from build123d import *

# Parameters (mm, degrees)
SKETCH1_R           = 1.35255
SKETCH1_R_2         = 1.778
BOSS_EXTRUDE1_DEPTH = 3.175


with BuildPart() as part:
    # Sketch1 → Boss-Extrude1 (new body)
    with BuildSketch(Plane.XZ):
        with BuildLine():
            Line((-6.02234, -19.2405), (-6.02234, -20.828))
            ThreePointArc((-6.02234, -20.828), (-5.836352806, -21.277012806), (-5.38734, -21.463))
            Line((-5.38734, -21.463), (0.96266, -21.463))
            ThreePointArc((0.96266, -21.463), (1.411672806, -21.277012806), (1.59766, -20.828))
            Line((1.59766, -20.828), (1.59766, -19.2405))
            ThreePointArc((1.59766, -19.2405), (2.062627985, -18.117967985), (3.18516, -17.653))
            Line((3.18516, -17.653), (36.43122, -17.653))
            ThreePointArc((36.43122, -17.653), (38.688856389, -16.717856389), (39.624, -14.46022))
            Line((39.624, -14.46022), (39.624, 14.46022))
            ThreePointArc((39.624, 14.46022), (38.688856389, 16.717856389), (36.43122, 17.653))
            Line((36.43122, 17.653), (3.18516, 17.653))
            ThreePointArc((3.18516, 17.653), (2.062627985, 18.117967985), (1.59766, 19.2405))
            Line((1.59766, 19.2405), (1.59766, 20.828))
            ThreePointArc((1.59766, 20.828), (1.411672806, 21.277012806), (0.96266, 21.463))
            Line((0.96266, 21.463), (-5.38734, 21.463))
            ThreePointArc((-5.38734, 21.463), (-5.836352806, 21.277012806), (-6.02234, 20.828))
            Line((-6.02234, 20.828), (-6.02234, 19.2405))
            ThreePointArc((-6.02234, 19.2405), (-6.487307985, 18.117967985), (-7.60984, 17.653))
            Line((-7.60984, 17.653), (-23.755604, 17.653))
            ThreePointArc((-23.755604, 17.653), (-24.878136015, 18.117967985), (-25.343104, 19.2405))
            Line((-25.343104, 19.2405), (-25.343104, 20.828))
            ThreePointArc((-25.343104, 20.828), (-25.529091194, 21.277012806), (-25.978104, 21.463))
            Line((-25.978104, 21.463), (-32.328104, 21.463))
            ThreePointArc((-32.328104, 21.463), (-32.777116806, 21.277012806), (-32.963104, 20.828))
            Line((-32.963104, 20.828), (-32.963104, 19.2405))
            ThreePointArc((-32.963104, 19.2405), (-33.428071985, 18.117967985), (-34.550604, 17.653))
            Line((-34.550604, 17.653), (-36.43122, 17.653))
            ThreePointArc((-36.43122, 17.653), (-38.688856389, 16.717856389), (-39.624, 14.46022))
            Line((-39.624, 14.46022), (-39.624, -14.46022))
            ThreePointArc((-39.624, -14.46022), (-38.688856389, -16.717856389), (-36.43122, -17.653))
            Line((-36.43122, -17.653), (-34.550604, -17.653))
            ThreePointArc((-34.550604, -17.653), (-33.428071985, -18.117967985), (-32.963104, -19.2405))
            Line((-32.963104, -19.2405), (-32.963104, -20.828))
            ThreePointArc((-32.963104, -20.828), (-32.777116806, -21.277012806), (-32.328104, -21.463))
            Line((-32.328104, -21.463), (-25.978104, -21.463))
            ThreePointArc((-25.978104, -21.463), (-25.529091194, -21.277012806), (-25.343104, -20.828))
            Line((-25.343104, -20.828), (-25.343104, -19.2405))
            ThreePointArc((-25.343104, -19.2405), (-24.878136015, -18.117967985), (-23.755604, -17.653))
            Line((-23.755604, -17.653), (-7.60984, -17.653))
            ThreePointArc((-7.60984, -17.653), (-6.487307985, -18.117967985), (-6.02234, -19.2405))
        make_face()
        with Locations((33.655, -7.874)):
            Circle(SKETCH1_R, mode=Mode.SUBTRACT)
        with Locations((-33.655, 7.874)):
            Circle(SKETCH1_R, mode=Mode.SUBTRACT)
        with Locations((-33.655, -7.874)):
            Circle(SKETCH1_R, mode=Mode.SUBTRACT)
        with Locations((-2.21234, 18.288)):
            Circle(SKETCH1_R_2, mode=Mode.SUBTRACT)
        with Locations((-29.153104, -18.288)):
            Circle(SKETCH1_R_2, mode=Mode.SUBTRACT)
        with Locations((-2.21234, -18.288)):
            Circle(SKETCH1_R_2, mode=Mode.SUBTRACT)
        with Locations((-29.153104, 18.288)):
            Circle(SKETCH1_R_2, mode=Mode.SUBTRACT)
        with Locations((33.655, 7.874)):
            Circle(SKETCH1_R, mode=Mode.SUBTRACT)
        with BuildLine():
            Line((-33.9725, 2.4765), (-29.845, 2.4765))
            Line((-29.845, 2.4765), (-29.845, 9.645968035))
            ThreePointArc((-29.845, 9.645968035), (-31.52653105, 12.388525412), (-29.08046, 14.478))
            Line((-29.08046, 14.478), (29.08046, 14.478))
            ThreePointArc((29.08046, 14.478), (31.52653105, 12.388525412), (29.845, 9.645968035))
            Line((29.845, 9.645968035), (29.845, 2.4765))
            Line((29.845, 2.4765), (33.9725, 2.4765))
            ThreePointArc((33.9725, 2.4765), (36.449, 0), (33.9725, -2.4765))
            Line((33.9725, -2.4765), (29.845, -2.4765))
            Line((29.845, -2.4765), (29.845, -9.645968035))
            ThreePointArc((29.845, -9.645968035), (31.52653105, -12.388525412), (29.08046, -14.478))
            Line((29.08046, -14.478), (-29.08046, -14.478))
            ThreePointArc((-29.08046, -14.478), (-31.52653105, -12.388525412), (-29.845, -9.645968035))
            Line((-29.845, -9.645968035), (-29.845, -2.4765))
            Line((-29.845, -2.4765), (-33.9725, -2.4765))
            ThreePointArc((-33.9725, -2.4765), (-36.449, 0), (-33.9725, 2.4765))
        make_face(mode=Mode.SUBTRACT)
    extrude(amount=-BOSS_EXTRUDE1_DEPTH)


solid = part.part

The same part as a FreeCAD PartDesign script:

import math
import FreeCAD as App
import Part
import Sketcher
from FreeCAD import Vector
Q = App.Units.Quantity

doc = App.newDocument("Part")
body = doc.addObject("PartDesign::Body", "Body")

sketch1 = doc.addObject("Sketcher::SketchObject", "Sketch")
body.addObject(sketch1)
sketch1.AttachmentSupport = (doc.XZ_Plane, [""])
sketch1.MapMode = "FlatFace"
sketch1.addGeometry([
    Part.LineSegment(Vector(-6, -19.2, 0), Vector(-6, -20.8, 0)),
    Part.ArcOfCircle(Part.Circle(Vector(-5.4, -20.8, 0), Vector(0, 0, 1), 0.6), math.radians(180), math.radians(270)),
    Part.LineSegment(Vector(-5.4, -21.5, 0), Vector(1, -21.5, 0)),
    Part.ArcOfCircle(Part.Circle(Vector(1, -20.8, 0), Vector(0, 0, 1), 0.6), math.radians(-90), math.radians(0)),
    Part.LineSegment(Vector(1.6, -20.8, 0), Vector(1.6, -19.2, 0)),
    Part.ArcOfCircle(Part.Circle(Vector(3.2, -19.2, 0), Vector(0, 0, 1), 1.6), math.radians(90), math.radians(180)),
    Part.LineSegment(Vector(3.2, -17.7, 0), Vector(36.4, -17.7, 0)),
    Part.ArcOfCircle(Part.Circle(Vector(36.4, -14.5, 0), Vector(0, 0, 1), 3.2), math.radians(-90), math.radians(0)),
    Part.LineSegment(Vector(39.6, -14.5, 0), Vector(39.6, 14.5, 0)),
    Part.ArcOfCircle(Part.Circle(Vector(36.4, 14.5, 0), Vector(0, 0, 1), 3.2), math.radians(0), math.radians(90)),
    Part.LineSegment(Vector(36.4, 17.7, 0), Vector(3.2, 17.7, 0)),
    Part.ArcOfCircle(Part.Circle(Vector(3.2, 19.2, 0), Vector(0, 0, 1), 1.6), math.radians(180), math.radians(270)),
    Part.LineSegment(Vector(1.6, 19.2, 0), Vector(1.6, 20.8, 0)),
    Part.ArcOfCircle(Part.Circle(Vector(1, 20.8, 0), Vector(0, 0, 1), 0.6), math.radians(0), math.radians(90)),
    Part.LineSegment(Vector(1, 21.5, 0), Vector(-5.4, 21.5, 0)),
    Part.ArcOfCircle(Part.Circle(Vector(-5.4, 20.8, 0), Vector(0, 0, 1), 0.6), math.radians(90), math.radians(180)),
    Part.LineSegment(Vector(-6, 20.8, 0), Vector(-6, 19.2, 0)),
    Part.ArcOfCircle(Part.Circle(Vector(-7.6, 19.2, 0), Vector(0, 0, 1), 1.6), math.radians(-90), math.radians(0)),
    Part.LineSegment(Vector(-7.6, 17.7, 0), Vector(-23.8, 17.7, 0)),
    Part.ArcOfCircle(Part.Circle(Vector(-23.8, 19.2, 0), Vector(0, 0, 1), 1.6), math.radians(180), math.radians(270)),
    Part.LineSegment(Vector(-25.3, 19.2, 0), Vector(-25.3, 20.8, 0)),
    Part.ArcOfCircle(Part.Circle(Vector(-26, 20.8, 0), Vector(0, 0, 1), 0.6), math.radians(0), math.radians(90)),
    Part.LineSegment(Vector(-26, 21.5, 0), Vector(-32.3, 21.5, 0)),
    Part.ArcOfCircle(Part.Circle(Vector(-32.3, 20.8, 0), Vector(0, 0, 1), 0.6), math.radians(90), math.radians(180)),
    Part.LineSegment(Vector(-33, 20.8, 0), Vector(-33, 19.2, 0)),
    Part.ArcOfCircle(Part.Circle(Vector(-34.6, 19.2, 0), Vector(0, 0, 1), 1.6), math.radians(-90), math.radians(0)),
    Part.LineSegment(Vector(-34.6, 17.7, 0), Vector(-36.4, 17.7, 0)),
    Part.ArcOfCircle(Part.Circle(Vector(-36.4, 14.5, 0), Vector(0, 0, 1), 3.2), math.radians(90), math.radians(180)),
    Part.LineSegment(Vector(-39.6, 14.5, 0), Vector(-39.6, -14.5, 0)),
    Part.ArcOfCircle(Part.Circle(Vector(-36.4, -14.5, 0), Vector(0, 0, 1), 3.2), math.radians(180), math.radians(270)),
    Part.LineSegment(Vector(-36.4, -17.7, 0), Vector(-34.6, -17.7, 0)),
    Part.ArcOfCircle(Part.Circle(Vector(-34.6, -19.2, 0), Vector(0, 0, 1), 1.6), math.radians(0), math.radians(90)),
    Part.LineSegment(Vector(-33, -19.2, 0), Vector(-33, -20.8, 0)),
    Part.ArcOfCircle(Part.Circle(Vector(-32.3, -20.8, 0), Vector(0, 0, 1), 0.6), math.radians(180), math.radians(270)),
    Part.LineSegment(Vector(-32.3, -21.5, 0), Vector(-26, -21.5, 0)),
    Part.ArcOfCircle(Part.Circle(Vector(-26, -20.8, 0), Vector(0, 0, 1), 0.6), math.radians(-90), math.radians(0)),
    Part.LineSegment(Vector(-25.3, -20.8, 0), Vector(-25.3, -19.2, 0)),
    Part.ArcOfCircle(Part.Circle(Vector(-23.8, -19.2, 0), Vector(0, 0, 1), 1.6), math.radians(90), math.radians(180)),
    Part.LineSegment(Vector(-23.8, -17.7, 0), Vector(-7.6, -17.7, 0)),
    Part.ArcOfCircle(Part.Circle(Vector(-7.6, -19.2, 0), Vector(0, 0, 1), 1.6), math.radians(0), math.radians(90)),
    Part.Circle(Vector(-29.2, -18.3, 0), Vector(0, 0, 1), 1.8),
    Part.Circle(Vector(-2.2, -18.3, 0), Vector(0, 0, 1), 1.8),
    Part.Circle(Vector(-33.7, -7.9, 0), Vector(0, 0, 1), 1.4),
    Part.Circle(Vector(33.7, -7.9, 0), Vector(0, 0, 1), 1.4),
    Part.Circle(Vector(-33.7, 7.9, 0), Vector(0, 0, 1), 1.4),
    Part.Circle(Vector(-29.2, 18.3, 0), Vector(0, 0, 1), 1.8),
    Part.Circle(Vector(-2.2, 18.3, 0), Vector(0, 0, 1), 1.8),
    Part.ArcOfCircle(Part.Circle(Vector(-34, 0, 0), Vector(0, 0, 1), 2.5), math.radians(90), math.radians(270)),
    Part.LineSegment(Vector(-34, 2.5, 0), Vector(-29.8, 2.5, 0)),
    Part.LineSegment(Vector(-29.8, 2.5, 0), Vector(-29.8, 9.6, 0)),
    Part.ArcOfCircle(Part.Circle(Vector(-29.1, 12, 0), Vector(0, 0, 1), 2.5), math.radians(90), math.radians(252)),
    Part.LineSegment(Vector(-29.1, 14.5, 0), Vector(29.1, 14.5, 0)),
    Part.ArcOfCircle(Part.Circle(Vector(29.1, 12, 0), Vector(0, 0, 1), 2.5), math.radians(-72), math.radians(90)),
    Part.LineSegment(Vector(29.8, 9.6, 0), Vector(29.8, 2.5, 0)),
    Part.LineSegment(Vector(29.8, 2.5, 0), Vector(34, 2.5, 0)),
    Part.ArcOfCircle(Part.Circle(Vector(34, 0, 0), Vector(0, 0, 1), 2.5), math.radians(-90), math.radians(90)),
    Part.LineSegment(Vector(34, -2.5, 0), Vector(29.8, -2.5, 0)),
    Part.LineSegment(Vector(29.8, -2.5, 0), Vector(29.8, -9.6, 0)),
    Part.ArcOfCircle(Part.Circle(Vector(29.1, -12, 0), Vector(0, 0, 1), 2.5), math.radians(-90), math.radians(72)),
    Part.LineSegment(Vector(29.1, -14.5, 0), Vector(-29.1, -14.5, 0)),
    Part.ArcOfCircle(Part.Circle(Vector(-29.1, -12, 0), Vector(0, 0, 1), 2.5), math.radians(108), math.radians(270)),
    Part.LineSegment(Vector(-29.8, -9.6, 0), Vector(-29.8, -2.5, 0)),
    Part.LineSegment(Vector(-29.8, -2.5, 0), Vector(-34, -2.5, 0)),
    Part.Circle(Vector(33.7, 7.9, 0), Vector(0, 0, 1), 1.4),
], False)
sketch1.addConstraint([
    Sketcher.Constraint("Tangent", 0, 2, 1, 1),
    Sketcher.Constraint("Tangent", 1, 2, 2, 1),
    Sketcher.Constraint("Tangent", 2, 2, 3, 1),
    Sketcher.Constraint("Tangent", 3, 2, 4, 1),
    Sketcher.Constraint("Tangent", 4, 2, 5, 2),
    Sketcher.Constraint("Tangent", 5, 1, 6, 1),
    Sketcher.Constraint("Tangent", 6, 2, 7, 1),
    Sketcher.Constraint("Tangent", 7, 2, 8, 1),
    Sketcher.Constraint("Tangent", 8, 2, 9, 1),
    Sketcher.Constraint("Tangent", 9, 2, 10, 1),
    Sketcher.Constraint("Tangent", 10, 2, 11, 2),
    Sketcher.Constraint("Tangent", 11, 1, 12, 1),
    Sketcher.Constraint("Tangent", 12, 2, 13, 1),
    Sketcher.Constraint("Tangent", 13, 2, 14, 1),
    Sketcher.Constraint("Tangent", 14, 2, 15, 1),
    Sketcher.Constraint("Tangent", 15, 2, 16, 1),
    Sketcher.Constraint("Tangent", 16, 2, 17, 2),
    Sketcher.Constraint("Tangent", 17, 1, 18, 1),
    Sketcher.Constraint("Tangent", 18, 2, 19, 2),
    Sketcher.Constraint("Tangent", 19, 1, 20, 1),
    Sketcher.Constraint("Tangent", 20, 2, 21, 1),
    Sketcher.Constraint("Tangent", 21, 2, 22, 1),
    Sketcher.Constraint("Tangent", 22, 2, 23, 1),
    Sketcher.Constraint("Tangent", 23, 2, 24, 1),
    Sketcher.Constraint("Tangent", 24, 2, 25, 2),
    Sketcher.Constraint("Tangent", 25, 1, 26, 1),
    Sketcher.Constraint("Tangent", 26, 2, 27, 1),
    Sketcher.Constraint("Tangent", 27, 2, 28, 1),
    Sketcher.Constraint("Tangent", 28, 2, 29, 1),
    Sketcher.Constraint("Tangent", 29, 2, 30, 1),
    Sketcher.Constraint("Tangent", 30, 2, 31, 2),
    Sketcher.Constraint("Tangent", 31, 1, 32, 1),
    Sketcher.Constraint("Tangent", 32, 2, 33, 1),
    Sketcher.Constraint("Tangent", 33, 2, 34, 1),
    Sketcher.Constraint("Tangent", 34, 2, 35, 1),
    Sketcher.Constraint("Tangent", 35, 2, 36, 1),
    Sketcher.Constraint("Tangent", 36, 2, 37, 2),
    Sketcher.Constraint("Tangent", 37, 1, 38, 1),
    Sketcher.Constraint("Tangent", 38, 2, 39, 2),
    Sketcher.Constraint("Tangent", 39, 1, 0, 1),
    Sketcher.Constraint("Tangent", 47, 1, 48, 1),
    Sketcher.Constraint("Coincident", 48, 2, 49, 1),
    Sketcher.Constraint("Coincident", 49, 2, 50, 2),
    Sketcher.Constraint("Tangent", 50, 1, 51, 1),
    Sketcher.Constraint("Tangent", 51, 2, 52, 2),
    Sketcher.Constraint("Coincident", 52, 1, 53, 1),
    Sketcher.Constraint("Coincident", 53, 2, 54, 1),
    Sketcher.Constraint("Tangent", 54, 2, 55, 2),
    Sketcher.Constraint("Tangent", 55, 1, 56, 1),
    Sketcher.Constraint("Coincident", 56, 2, 57, 1),
    Sketcher.Constraint("Coincident", 57, 2, 58, 2),
    Sketcher.Constraint("Tangent", 58, 1, 59, 1),
    Sketcher.Constraint("Tangent", 59, 2, 60, 2),
    Sketcher.Constraint("Coincident", 60, 1, 61, 1),
    Sketcher.Constraint("Coincident", 61, 2, 62, 1),
    Sketcher.Constraint("Tangent", 62, 2, 47, 2),
    Sketcher.Constraint("Vertical", 0),
    Sketcher.Constraint("Horizontal", 2),
    Sketcher.Constraint("Vertical", 4),
    Sketcher.Constraint("Horizontal", 6),
    Sketcher.Constraint("Vertical", 8),
    Sketcher.Constraint("Horizontal", 10),
    Sketcher.Constraint("Vertical", 12),
    Sketcher.Constraint("Horizontal", 14),
    Sketcher.Constraint("Vertical", 16),
    Sketcher.Constraint("Horizontal", 18),
    Sketcher.Constraint("Vertical", 20),
    Sketcher.Constraint("Horizontal", 22),
    Sketcher.Constraint("Vertical", 24),
    Sketcher.Constraint("Horizontal", 26),
    Sketcher.Constraint("Vertical", 28),
    Sketcher.Constraint("Horizontal", 30),
    Sketcher.Constraint("Vertical", 32),
    Sketcher.Constraint("Horizontal", 34),
    Sketcher.Constraint("Vertical", 36),
    Sketcher.Constraint("Horizontal", 38),
    Sketcher.Constraint("Horizontal", 48),
    Sketcher.Constraint("Vertical", 49),
    Sketcher.Constraint("Horizontal", 51),
    Sketcher.Constraint("Vertical", 53),
    Sketcher.Constraint("Horizontal", 54),
    Sketcher.Constraint("Horizontal", 56),
    Sketcher.Constraint("Vertical", 57),
    Sketcher.Constraint("Horizontal", 59),
    Sketcher.Constraint("Vertical", 61),
    Sketcher.Constraint("Horizontal", 62),
    Sketcher.Constraint("Equal", 1, 3),
    Sketcher.Constraint("Equal", 7, 9),
    Sketcher.Constraint("Equal", 5, 11),
    Sketcher.Constraint("Equal", 3, 13),
    Sketcher.Constraint("Equal", 13, 15),
    Sketcher.Constraint("Equal", 11, 17),
    Sketcher.Constraint("Equal", 17, 19),
    Sketcher.Constraint("Equal", 15, 21),
    Sketcher.Constraint("Equal", 21, 23),
    Sketcher.Constraint("Equal", 19, 25),
    Sketcher.Constraint("Equal", 9, 27),
    Sketcher.Constraint("Equal", 27, 29),
    Sketcher.Constraint("Equal", 25, 31),
    Sketcher.Constraint("Equal", 23, 33),
    Sketcher.Constraint("Equal", 33, 35),
    Sketcher.Constraint("Equal", 31, 37),
    Sketcher.Constraint("Equal", 37, 39),
    Sketcher.Constraint("Equal", 40, 41),
    Sketcher.Constraint("Equal", 42, 43),
    Sketcher.Constraint("Equal", 43, 44),
    Sketcher.Constraint("Equal", 41, 45),
    Sketcher.Constraint("Equal", 45, 46),
    Sketcher.Constraint("Equal", 47, 50),
    Sketcher.Constraint("Equal", 50, 52),
    Sketcher.Constraint("Equal", 52, 55),
    Sketcher.Constraint("Equal", 55, 58),
    Sketcher.Constraint("Equal", 58, 60),
    Sketcher.Constraint("Equal", 44, 63),
    Sketcher.Constraint("Symmetric", 7, 3, 27, 3, -1, 1),
    Sketcher.Constraint("Symmetric", 43, 3, 44, 3, -1, 1),
    Sketcher.Constraint("Symmetric", 47, 3, 55, 3, -1, 1),
    Sketcher.Constraint("Symmetric", 50, 3, 58, 3, -1, 1),
    Sketcher.Constraint("Symmetric", 42, 3, 63, 3, -1, 1),
    Sketcher.Constraint("Symmetric", 52, 1, 60, 1, -1, 1),
    Sketcher.Constraint("Symmetric", 42, 3, 43, 3, -2),
    Sketcher.Constraint("Symmetric", 49, 2, 52, 1, -2),
    Sketcher.Constraint("Symmetric", 56, 2, 61, 2, -2),
    Sketcher.Constraint("Symmetric", 5, 3, 11, 3, -1),
    Sketcher.Constraint("Symmetric", 1, 3, 15, 3, -1),
    Sketcher.Constraint("Symmetric", 25, 3, 31, 3, -1),
    Sketcher.Constraint("Symmetric", 21, 3, 35, 3, -1),
    Sketcher.Constraint("Symmetric", 40, 3, 45, 3, -1),
    Sketcher.Constraint("Symmetric", 41, 3, 46, 3, -1),
    Sketcher.Constraint("Horizontal", 11, 3, 17, 3),
    Sketcher.Constraint("Horizontal", 15, 3, 21, 3),
    Sketcher.Constraint("Horizontal", 31, 3, 37, 3),
    Sketcher.Constraint("Horizontal", 40, 3, 41, 3),
    Sketcher.Constraint("Equal", 14, 22),
    Sketcher.Constraint("Diameter", 40, Q("0.14 in")),
    Sketcher.Constraint("Radius", 1, Q("0.025 in")),
    Sketcher.Constraint("Radius", 5, Q("0.0625 in")),
    Sketcher.Constraint("Diameter", 42, Q("0.1065 in")),
    Sketcher.Constraint("DistanceX", 2, 1, 2, 2, Q("0.25 in")),
    Sketcher.Constraint("Radius", 7, Q("0.1257 in")),
    Sketcher.Constraint("Radius", 47, Q("0.0975 in")),
    Sketcher.Constraint("DistanceY", 0, 2, 0, 1, Q("0.0625 in")),
    Sketcher.Constraint("DistanceY", 1, 3, -1, 1, Q("0.82 in")),
    Sketcher.Constraint("DistanceY", 40, 3, -1, 1, Q("0.72 in")),
    Sketcher.Constraint("DistanceY", 42, 3, -1, 1, Q("0.31 in")),
    Sketcher.Constraint("DistanceX", -1, 1, 7, 2, Q("1.56 in")),
    Sketcher.Constraint("DistanceY", -1, 1, 50, 1, Q("0.57 in")),
    Sketcher.Constraint("DistanceX", 6, 1, 6, 2, Q("1.3089 in")),
    Sketcher.Constraint("DistanceX", 48, 1, 48, 2, Q("0.1625 in")),
    Sketcher.Constraint("DistanceX", 51, 1, 51, 2, Q("2.2898 in")),
    Sketcher.Constraint("DistanceX", 42, 3, -1, 1, Q("1.325 in")),
    Sketcher.Constraint("DistanceX", 48, 2, -1, 1, Q("1.175 in")),
    Sketcher.Constraint("DistanceX", 41, 3, -1, 1, Q("0.0871 in")),
    Sketcher.Constraint("DistanceX", 18, 2, 18, 1, 16.145764),
    Sketcher.Constraint("DistanceX", 40, 3, -1, 1, 29.153104),
])
pad1 = doc.addObject("PartDesign::Pad", "Pad")
body.addObject(pad1)
pad1.Profile = sketch1
pad1.Length = Q("0.125 in")
pad1.Reversed = True

doc.recompute()
